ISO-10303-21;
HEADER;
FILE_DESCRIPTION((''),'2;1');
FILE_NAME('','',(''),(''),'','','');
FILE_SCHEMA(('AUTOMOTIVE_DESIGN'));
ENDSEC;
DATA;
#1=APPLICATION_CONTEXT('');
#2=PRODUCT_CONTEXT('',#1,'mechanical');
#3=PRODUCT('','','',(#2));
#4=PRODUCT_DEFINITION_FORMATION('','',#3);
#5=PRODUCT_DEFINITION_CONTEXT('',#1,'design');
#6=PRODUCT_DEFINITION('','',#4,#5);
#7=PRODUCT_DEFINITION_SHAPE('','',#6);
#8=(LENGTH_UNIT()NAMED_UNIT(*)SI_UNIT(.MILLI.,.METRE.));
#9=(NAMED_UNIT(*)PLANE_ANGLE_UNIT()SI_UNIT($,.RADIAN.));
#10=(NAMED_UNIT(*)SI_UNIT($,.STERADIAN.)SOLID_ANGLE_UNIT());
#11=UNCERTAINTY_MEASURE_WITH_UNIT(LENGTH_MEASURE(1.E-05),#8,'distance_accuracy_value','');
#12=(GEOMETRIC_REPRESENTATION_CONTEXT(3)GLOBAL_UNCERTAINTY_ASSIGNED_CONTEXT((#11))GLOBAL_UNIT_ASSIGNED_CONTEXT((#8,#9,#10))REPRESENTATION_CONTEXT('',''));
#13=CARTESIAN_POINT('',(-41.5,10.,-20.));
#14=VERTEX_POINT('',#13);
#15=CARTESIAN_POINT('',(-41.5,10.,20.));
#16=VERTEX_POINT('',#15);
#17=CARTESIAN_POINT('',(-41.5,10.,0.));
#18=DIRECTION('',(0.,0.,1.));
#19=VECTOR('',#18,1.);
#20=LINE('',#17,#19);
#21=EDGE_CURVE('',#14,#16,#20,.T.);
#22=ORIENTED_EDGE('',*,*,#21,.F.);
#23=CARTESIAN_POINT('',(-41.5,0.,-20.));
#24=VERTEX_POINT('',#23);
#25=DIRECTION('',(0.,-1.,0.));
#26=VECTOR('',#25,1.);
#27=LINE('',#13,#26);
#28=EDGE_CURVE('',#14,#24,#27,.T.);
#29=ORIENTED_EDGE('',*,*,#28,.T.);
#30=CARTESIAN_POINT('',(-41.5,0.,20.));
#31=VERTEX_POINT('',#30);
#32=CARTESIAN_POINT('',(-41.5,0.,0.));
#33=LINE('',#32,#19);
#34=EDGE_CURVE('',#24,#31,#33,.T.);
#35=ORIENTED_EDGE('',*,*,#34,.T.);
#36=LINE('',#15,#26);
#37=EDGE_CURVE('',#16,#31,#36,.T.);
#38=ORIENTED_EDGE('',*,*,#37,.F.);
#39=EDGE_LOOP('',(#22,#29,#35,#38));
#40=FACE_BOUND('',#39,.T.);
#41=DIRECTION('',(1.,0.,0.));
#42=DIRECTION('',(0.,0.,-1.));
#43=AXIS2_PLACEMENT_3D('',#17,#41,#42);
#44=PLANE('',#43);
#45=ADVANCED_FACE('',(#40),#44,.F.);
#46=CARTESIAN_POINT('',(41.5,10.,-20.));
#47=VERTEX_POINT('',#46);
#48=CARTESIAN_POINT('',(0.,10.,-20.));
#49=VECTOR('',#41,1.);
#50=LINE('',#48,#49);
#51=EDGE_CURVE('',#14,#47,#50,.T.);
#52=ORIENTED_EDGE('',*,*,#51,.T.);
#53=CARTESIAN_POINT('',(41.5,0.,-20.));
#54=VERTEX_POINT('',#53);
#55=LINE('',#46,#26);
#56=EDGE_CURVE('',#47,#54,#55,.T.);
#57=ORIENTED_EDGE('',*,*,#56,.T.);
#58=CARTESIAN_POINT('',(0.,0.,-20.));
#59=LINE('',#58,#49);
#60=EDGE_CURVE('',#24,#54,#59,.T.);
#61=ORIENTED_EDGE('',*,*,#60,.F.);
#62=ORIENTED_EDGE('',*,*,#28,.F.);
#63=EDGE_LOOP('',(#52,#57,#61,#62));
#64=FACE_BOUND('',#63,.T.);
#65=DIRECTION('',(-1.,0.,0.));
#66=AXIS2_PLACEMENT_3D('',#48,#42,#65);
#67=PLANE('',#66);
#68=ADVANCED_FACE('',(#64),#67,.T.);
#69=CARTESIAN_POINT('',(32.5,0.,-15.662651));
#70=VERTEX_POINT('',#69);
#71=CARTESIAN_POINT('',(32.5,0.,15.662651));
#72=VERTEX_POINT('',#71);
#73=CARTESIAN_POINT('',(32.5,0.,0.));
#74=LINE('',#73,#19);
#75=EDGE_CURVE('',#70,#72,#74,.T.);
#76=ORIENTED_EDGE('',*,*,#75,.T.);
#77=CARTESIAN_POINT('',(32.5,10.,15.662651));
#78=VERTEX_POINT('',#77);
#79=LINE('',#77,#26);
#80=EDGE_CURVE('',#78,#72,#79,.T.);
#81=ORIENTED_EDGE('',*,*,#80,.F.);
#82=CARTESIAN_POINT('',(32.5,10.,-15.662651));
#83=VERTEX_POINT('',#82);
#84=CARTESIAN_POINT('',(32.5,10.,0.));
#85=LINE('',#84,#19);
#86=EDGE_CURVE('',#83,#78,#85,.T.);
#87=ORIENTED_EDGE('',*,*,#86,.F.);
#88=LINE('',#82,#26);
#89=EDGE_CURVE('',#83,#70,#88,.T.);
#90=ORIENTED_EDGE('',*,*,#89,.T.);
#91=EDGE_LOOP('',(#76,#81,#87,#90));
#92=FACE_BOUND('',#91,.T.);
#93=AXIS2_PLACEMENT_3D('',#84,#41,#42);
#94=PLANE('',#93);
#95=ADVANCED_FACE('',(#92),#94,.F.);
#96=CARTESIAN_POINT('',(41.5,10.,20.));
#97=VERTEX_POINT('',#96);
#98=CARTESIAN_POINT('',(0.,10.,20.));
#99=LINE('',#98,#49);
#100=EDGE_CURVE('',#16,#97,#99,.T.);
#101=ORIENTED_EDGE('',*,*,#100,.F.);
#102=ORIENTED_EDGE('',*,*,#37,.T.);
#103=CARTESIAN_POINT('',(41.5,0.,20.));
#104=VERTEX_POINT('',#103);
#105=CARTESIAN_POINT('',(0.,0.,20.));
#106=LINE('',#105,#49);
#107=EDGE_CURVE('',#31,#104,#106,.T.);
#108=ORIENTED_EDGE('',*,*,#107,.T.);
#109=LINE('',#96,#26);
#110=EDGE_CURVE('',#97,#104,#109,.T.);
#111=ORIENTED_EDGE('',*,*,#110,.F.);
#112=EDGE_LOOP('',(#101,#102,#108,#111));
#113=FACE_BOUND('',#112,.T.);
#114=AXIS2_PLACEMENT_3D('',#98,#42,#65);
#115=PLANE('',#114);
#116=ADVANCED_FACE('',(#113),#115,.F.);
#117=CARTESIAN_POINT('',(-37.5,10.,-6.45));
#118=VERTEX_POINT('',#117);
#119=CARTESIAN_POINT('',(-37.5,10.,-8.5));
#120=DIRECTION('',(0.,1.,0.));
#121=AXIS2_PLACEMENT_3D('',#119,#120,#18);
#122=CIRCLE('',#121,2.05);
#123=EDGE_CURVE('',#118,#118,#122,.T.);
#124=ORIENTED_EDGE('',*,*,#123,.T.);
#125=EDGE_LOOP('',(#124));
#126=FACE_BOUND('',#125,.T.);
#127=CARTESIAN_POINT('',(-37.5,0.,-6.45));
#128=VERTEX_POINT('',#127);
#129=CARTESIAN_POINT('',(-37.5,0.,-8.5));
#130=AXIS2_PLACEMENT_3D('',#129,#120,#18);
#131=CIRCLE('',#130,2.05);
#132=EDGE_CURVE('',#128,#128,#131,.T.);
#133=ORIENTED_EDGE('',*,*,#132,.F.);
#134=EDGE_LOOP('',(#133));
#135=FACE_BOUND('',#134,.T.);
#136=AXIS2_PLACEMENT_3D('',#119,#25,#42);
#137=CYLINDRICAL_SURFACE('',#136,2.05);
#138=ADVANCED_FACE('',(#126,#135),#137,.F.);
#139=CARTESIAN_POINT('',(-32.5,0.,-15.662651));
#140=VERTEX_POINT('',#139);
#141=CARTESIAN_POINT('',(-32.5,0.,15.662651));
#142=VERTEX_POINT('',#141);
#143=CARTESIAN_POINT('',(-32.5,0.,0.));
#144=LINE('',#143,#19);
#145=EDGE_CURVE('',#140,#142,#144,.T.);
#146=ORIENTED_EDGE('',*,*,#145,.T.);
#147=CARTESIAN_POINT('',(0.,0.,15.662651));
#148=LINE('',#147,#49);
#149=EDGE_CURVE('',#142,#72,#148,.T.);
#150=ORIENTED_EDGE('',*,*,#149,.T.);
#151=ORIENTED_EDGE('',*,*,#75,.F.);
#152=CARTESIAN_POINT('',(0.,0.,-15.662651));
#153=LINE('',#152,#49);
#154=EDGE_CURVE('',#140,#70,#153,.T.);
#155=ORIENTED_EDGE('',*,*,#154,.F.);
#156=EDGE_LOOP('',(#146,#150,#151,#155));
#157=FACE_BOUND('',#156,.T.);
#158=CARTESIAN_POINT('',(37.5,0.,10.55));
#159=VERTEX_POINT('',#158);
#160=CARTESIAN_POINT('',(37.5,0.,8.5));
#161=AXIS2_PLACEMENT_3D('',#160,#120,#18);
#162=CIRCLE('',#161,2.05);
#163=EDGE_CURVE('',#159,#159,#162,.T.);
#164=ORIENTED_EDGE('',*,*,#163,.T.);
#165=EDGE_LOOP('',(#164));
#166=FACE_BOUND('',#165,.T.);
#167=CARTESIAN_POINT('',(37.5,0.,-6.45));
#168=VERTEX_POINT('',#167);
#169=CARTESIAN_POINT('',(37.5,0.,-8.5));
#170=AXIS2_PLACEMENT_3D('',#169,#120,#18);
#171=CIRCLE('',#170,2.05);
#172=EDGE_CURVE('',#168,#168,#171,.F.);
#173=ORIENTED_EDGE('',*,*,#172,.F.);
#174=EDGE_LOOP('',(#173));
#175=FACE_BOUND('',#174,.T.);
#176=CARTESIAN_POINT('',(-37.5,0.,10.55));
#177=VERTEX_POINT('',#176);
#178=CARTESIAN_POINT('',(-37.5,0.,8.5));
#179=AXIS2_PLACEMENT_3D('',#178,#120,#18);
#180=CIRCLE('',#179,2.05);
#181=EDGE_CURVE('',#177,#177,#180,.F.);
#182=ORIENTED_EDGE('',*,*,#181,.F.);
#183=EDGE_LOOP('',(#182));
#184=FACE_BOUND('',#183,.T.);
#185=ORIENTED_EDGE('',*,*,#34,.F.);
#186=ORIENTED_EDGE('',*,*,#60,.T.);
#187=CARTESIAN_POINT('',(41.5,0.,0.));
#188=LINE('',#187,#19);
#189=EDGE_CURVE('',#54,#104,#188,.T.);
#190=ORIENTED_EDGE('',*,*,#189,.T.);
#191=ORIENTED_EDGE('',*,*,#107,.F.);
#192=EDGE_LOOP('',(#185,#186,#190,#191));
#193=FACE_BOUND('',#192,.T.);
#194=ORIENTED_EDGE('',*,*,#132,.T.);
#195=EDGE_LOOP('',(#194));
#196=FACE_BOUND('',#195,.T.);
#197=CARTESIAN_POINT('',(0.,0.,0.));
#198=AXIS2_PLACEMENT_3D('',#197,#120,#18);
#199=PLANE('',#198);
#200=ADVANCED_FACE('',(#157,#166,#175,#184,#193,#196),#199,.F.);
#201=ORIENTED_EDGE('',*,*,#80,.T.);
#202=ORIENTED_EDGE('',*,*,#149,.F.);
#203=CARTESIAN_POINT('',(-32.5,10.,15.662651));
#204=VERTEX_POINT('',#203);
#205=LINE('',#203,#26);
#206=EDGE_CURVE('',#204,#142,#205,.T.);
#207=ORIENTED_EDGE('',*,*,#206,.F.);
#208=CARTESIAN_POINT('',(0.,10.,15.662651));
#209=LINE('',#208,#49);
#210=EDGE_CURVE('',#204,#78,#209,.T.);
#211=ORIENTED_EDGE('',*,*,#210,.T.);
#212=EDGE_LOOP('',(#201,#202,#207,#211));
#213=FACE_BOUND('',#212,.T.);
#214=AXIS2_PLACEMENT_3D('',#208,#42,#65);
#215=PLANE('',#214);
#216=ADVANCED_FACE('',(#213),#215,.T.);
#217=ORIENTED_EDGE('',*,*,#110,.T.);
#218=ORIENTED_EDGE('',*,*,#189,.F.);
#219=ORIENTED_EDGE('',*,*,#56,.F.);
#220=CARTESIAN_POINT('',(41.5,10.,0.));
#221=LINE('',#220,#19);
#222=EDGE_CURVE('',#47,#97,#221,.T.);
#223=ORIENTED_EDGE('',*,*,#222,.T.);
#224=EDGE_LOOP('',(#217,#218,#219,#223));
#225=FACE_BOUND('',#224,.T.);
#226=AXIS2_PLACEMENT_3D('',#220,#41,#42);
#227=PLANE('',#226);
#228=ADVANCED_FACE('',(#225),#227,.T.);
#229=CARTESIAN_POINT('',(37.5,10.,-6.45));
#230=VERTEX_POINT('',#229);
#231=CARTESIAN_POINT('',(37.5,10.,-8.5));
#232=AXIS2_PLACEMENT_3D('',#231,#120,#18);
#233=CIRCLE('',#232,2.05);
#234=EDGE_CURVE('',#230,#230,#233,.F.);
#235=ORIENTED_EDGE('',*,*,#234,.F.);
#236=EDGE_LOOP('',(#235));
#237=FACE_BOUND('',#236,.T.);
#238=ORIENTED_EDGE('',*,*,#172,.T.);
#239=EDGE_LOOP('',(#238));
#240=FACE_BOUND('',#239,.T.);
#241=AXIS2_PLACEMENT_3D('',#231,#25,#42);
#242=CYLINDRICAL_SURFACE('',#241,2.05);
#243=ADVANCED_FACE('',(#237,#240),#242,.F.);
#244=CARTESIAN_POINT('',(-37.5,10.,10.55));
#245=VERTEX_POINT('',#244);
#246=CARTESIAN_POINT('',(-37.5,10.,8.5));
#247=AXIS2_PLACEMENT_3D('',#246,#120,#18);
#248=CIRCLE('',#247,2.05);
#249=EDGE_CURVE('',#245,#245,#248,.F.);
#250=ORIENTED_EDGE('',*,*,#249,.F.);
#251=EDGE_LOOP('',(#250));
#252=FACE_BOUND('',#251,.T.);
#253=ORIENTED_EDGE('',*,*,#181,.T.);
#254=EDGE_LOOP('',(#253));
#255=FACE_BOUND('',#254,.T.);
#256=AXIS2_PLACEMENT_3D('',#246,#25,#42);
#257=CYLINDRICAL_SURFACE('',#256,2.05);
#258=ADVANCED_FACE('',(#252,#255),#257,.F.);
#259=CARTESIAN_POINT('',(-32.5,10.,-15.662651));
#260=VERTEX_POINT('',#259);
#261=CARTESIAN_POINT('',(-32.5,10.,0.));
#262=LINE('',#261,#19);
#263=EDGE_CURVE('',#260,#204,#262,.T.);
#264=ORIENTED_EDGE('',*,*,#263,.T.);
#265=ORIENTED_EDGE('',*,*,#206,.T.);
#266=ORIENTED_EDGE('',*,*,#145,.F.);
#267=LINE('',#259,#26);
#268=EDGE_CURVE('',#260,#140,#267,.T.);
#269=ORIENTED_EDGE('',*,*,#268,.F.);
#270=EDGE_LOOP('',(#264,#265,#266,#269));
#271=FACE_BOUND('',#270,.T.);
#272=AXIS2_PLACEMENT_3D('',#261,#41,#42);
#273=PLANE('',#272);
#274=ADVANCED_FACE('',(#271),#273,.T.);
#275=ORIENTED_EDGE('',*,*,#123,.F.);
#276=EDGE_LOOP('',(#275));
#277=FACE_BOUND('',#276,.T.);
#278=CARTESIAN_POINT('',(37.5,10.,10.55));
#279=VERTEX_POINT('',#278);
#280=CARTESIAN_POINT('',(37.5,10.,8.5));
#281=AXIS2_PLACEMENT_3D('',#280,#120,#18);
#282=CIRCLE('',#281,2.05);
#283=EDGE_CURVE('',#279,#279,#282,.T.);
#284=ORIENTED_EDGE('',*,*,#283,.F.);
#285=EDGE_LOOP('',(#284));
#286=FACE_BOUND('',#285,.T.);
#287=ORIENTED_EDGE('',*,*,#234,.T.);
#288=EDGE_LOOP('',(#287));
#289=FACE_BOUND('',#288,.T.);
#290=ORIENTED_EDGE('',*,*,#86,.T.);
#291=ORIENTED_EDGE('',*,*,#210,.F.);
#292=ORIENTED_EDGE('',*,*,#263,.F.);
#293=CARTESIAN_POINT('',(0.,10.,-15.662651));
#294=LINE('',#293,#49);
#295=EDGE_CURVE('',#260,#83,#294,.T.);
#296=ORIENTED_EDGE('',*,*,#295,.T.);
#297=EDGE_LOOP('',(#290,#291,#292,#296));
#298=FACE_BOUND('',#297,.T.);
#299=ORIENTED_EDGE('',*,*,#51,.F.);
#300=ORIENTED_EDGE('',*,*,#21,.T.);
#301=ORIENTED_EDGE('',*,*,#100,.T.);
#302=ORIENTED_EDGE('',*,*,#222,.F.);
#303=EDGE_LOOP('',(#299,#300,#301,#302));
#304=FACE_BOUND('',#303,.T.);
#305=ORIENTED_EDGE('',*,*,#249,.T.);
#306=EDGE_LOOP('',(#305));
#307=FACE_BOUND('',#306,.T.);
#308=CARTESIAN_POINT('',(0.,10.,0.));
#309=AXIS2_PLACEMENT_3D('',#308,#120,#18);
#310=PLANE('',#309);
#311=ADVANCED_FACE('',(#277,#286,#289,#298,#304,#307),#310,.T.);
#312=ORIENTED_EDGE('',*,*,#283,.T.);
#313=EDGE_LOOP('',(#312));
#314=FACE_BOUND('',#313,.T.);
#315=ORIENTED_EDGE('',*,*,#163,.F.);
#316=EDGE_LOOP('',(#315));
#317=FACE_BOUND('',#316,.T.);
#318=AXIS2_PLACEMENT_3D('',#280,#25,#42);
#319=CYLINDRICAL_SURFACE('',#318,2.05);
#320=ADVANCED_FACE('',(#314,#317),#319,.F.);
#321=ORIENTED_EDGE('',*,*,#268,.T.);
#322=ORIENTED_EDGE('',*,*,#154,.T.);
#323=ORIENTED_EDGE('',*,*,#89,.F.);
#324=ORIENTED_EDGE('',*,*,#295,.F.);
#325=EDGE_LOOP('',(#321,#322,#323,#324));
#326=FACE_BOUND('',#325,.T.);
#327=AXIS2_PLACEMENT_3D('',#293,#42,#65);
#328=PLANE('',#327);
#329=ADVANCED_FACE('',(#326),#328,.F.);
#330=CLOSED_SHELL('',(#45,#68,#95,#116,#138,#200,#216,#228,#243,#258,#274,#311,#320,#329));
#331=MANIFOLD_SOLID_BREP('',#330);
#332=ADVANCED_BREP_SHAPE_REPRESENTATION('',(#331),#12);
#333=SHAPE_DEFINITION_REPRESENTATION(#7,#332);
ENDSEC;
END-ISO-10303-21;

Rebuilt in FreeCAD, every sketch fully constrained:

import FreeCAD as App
import Part
import Sketcher
Q = App.Units.Quantity

doc = App.newDocument("Part")
body = doc.addObject("PartDesign::Body", "Body")

# Sketch on XZ plane
sketch1 = doc.addObject("Sketcher::SketchObject", "Sketch")
body.addObject(sketch1)
sketch1.AttachmentSupport = (doc.XZ_Plane, [""])
sketch1.MapMode = "FlatFace"
sketch1.addGeometry(Part.LineSegment(App.Vector(-41.5, -20, 0), App.Vector(-41.5, 20, 0)), False)
sketch1.addGeometry(Part.LineSegment(App.Vector(-41.5, 20, 0), App.Vector(41.5, 20, 0)), False)
sketch1.addGeometry(Part.LineSegment(App.Vector(41.5, 20, 0), App.Vector(41.5, -20, 0)), False)
sketch1.addGeometry(Part.LineSegment(App.Vector(41.5, -20, 0), App.Vector(-41.5, -20, 0)), False)
sketch1.addGeometry(Part.Circle(App.Vector(-37.5, 8.5, 0), App.Vector(0, 0, 1), 2.05), False)
sketch1.addGeometry(Part.Circle(App.Vector(37.5, 8.5, 0), App.Vector(0, 0, 1), 2.05), False)
sketch1.addGeometry(Part.Circle(App.Vector(-37.5, -8.5, 0), App.Vector(0, 0, 1), 2.05), False)
sketch1.addGeometry(Part.LineSegment(App.Vector(32.5, 15.662651, 0), App.Vector(-32.5, 15.662651, 0)), False)
sketch1.addGeometry(Part.LineSegment(App.Vector(-32.5, 15.662651, 0), App.Vector(-32.5, -15.662651, 0)), False)
sketch1.addGeometry(Part.LineSegment(App.Vector(-32.5, -15.662651, 0), App.Vector(32.5, -15.662651, 0)), False)
sketch1.addGeometry(Part.LineSegment(App.Vector(32.5, -15.662651, 0), App.Vector(32.5, 15.662651, 0)), False)
sketch1.addGeometry(Part.Circle(App.Vector(37.5, -8.5, 0), App.Vector(0, 0, 1), 2.05), False)
sketch1.addConstraint(Sketcher.Constraint("Coincident", 0, 2, 1, 1))
sketch1.addConstraint(Sketcher.Constraint("Coincident", 1, 2, 2, 1))
sketch1.addConstraint(Sketcher.Constraint("Coincident", 2, 2, 3, 1))
sketch1.addConstraint(Sketcher.Constraint("Coincident", 3, 2, 0, 1))
sketch1.addConstraint(Sketcher.Constraint("Coincident", 7, 2, 8, 1))
sketch1.addConstraint(Sketcher.Constraint("Coincident", 8, 2, 9, 1))
sketch1.addConstraint(Sketcher.Constraint("Coincident", 9, 2, 10, 1))
sketch1.addConstraint(Sketcher.Constraint("Coincident", 10, 2, 7, 1))
sketch1.addConstraint(Sketcher.Constraint("Vertical", 0))
sketch1.addConstraint(Sketcher.Constraint("Horizontal", 1))
sketch1.addConstraint(Sketcher.Constraint("Vertical", 2))
sketch1.addConstraint(Sketcher.Constraint("Horizontal", 3))
sketch1.addConstraint(Sketcher.Constraint("Horizontal", 7))
sketch1.addConstraint(Sketcher.Constraint("Vertical", 8))
sketch1.addConstraint(Sketcher.Constraint("Horizontal", 9))
sketch1.addConstraint(Sketcher.Constraint("Vertical", 10))
sketch1.addConstraint(Sketcher.Constraint("Equal", 4, 5))
sketch1.addConstraint(Sketcher.Constraint("Equal", 5, 6))
sketch1.addConstraint(Sketcher.Constraint("Equal", 6, 11))
sketch1.addConstraint(Sketcher.Constraint("Symmetric", 5, 3, 6, 3, -1, 1))
sketch1.addConstraint(Sketcher.Constraint("Symmetric", 4, 3, 11, 3, -1, 1))
sketch1.addConstraint(Sketcher.Constraint("Symmetric", 0, 2, 2, 2, -1, 1))
sketch1.addConstraint(Sketcher.Constraint("Symmetric", 7, 2, 9, 2, -1, 1))
sketch1.addConstraint(Sketcher.Constraint("Symmetric", 4, 3, 5, 3, -2))
sketch1.addConstraint(Sketcher.Constraint("Diameter", 4, Q("4.1 mm")))
sketch1.addConstraint(Sketcher.Constraint("DistanceX", 1, 1, 1, 2, Q("83 mm")))
sketch1.addConstraint(Sketcher.Constraint("DistanceX", 7, 2, 7, 1, Q("65 mm")))
sketch1.addConstraint(Sketcher.Constraint("DistanceY", 0, 1, 0, 2, Q("40 mm")))
sketch1.addConstraint(Sketcher.Constraint("DistanceX", 4, 3, 5, 3, Q("75 mm")))
sketch1.addConstraint(Sketcher.Constraint("DistanceY", 6, 3, 4, 3, Q("17 mm")))
sketch1.addConstraint(Sketcher.Constraint("DistanceY", 8, 2, 8, 1, Q("31.325301 mm")))
pad1 = doc.addObject("PartDesign::Pad", "Pad")
body.addObject(pad1)
pad1.Profile = sketch1
pad1.Length = 10
pad1.Reversed = True

doc.recompute()
